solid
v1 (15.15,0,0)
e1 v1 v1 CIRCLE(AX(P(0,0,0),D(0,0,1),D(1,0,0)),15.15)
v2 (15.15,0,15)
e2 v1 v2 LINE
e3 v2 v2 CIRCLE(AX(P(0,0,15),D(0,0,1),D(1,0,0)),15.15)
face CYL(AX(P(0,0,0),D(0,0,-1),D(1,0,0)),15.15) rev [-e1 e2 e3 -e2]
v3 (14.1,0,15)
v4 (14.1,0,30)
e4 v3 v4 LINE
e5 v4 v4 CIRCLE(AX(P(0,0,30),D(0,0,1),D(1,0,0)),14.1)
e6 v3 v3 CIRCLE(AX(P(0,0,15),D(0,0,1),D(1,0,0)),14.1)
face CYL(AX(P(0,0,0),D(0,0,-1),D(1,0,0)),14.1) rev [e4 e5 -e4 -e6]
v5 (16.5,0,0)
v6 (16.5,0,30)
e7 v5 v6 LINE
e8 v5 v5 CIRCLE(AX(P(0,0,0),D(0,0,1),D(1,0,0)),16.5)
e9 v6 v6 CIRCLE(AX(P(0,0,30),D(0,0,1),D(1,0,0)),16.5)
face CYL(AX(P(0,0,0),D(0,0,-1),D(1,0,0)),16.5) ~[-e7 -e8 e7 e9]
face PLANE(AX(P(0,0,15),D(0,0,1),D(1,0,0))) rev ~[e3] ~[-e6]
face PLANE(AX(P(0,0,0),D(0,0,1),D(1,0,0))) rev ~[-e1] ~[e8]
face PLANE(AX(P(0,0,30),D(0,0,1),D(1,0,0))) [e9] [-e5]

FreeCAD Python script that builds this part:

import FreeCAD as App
import Part
import Sketcher

doc = App.newDocument("Part")
params = doc.addObject("Spreadsheet::Sheet", "Params")
for row, (alias, value) in enumerate([
    ("sketch1_diameter", "33 mm"),
    ("sketch1_diameter2", "28.2 mm"),
    ("pad1_length", "30 mm"),
    ("sketch2_diameter", "30.3 mm"),
    ("sketch2_diameter2", "28.2 mm"),
    ("pocket1_length", "15 mm"),
], start=1):
    params.set(f"A{row}", alias)
    params.set(f"B{row}", "=" + value)
    params.setAlias(f"B{row}", alias)

body = doc.addObject("PartDesign::Body", "Body")

sketch1 = body.newObject("Sketcher::SketchObject", "Sketch")
sketch1.AttachmentSupport = (doc.getObject("XY_Plane"), [""])
sketch1.MapMode = "FlatFace"
sketch1.addGeometry(Part.Circle(App.Vector(0, 0, 0), App.Vector(0, 0, 1), 16), False)
sketch1.addGeometry(Part.Circle(App.Vector(0, 0, 0), App.Vector(0, 0, 1), 14), False)
sketch1.addConstraint(Sketcher.Constraint("Coincident", 0, 3, -1, 1))
sketch1.addConstraint(Sketcher.Constraint("Coincident", 1, 3, -1, 1))
sketch1.addConstraint(Sketcher.Constraint("Diameter", 0, 33.0))
sketch1.addConstraint(Sketcher.Constraint("Diameter", 1, 28.2))
sketch1.setExpression("Constraints[2]", "Params.sketch1_diameter")
sketch1.setExpression("Constraints[3]", "Params.sketch1_diameter2")
pad1 = body.newObject("PartDesign::Pad", "Pad")
pad1.Profile = sketch1
pad1.setExpression("Length", "Params.pad1_length")

sketch2 = body.newObject("Sketcher::SketchObject", "Sketch001")
sketch2.AttachmentSupport = (doc.getObject("XY_Plane"), [""])
sketch2.MapMode = "FlatFace"
sketch2.addGeometry(Part.Circle(App.Vector(0, 0, 0), App.Vector(0, 0, 1), 15), False)
sketch2.addGeometry(Part.Circle(App.Vector(0, 0, 0), App.Vector(0, 0, 1), 14), False)
sketch2.addConstraint(Sketcher.Constraint("Coincident", 0, 3, -1, 1))
sketch2.addConstraint(Sketcher.Constraint("Coincident", 1, 3, -1, 1))
sketch2.addConstraint(Sketcher.Constraint("Diameter", 0, 30.3))
sketch2.addConstraint(Sketcher.Constraint("Diameter", 1, 28.2))
sketch2.setExpression("Constraints[2]", "Params.sketch2_diameter")
sketch2.setExpression("Constraints[3]", "Params.sketch2_diameter2")
pocket1 = body.newObject("PartDesign::Pocket", "Pocket")
pocket1.Profile = sketch2
pocket1.setExpression("Length", "Params.pocket1_length")
pocket1.Reversed = True

doc.recompute()
